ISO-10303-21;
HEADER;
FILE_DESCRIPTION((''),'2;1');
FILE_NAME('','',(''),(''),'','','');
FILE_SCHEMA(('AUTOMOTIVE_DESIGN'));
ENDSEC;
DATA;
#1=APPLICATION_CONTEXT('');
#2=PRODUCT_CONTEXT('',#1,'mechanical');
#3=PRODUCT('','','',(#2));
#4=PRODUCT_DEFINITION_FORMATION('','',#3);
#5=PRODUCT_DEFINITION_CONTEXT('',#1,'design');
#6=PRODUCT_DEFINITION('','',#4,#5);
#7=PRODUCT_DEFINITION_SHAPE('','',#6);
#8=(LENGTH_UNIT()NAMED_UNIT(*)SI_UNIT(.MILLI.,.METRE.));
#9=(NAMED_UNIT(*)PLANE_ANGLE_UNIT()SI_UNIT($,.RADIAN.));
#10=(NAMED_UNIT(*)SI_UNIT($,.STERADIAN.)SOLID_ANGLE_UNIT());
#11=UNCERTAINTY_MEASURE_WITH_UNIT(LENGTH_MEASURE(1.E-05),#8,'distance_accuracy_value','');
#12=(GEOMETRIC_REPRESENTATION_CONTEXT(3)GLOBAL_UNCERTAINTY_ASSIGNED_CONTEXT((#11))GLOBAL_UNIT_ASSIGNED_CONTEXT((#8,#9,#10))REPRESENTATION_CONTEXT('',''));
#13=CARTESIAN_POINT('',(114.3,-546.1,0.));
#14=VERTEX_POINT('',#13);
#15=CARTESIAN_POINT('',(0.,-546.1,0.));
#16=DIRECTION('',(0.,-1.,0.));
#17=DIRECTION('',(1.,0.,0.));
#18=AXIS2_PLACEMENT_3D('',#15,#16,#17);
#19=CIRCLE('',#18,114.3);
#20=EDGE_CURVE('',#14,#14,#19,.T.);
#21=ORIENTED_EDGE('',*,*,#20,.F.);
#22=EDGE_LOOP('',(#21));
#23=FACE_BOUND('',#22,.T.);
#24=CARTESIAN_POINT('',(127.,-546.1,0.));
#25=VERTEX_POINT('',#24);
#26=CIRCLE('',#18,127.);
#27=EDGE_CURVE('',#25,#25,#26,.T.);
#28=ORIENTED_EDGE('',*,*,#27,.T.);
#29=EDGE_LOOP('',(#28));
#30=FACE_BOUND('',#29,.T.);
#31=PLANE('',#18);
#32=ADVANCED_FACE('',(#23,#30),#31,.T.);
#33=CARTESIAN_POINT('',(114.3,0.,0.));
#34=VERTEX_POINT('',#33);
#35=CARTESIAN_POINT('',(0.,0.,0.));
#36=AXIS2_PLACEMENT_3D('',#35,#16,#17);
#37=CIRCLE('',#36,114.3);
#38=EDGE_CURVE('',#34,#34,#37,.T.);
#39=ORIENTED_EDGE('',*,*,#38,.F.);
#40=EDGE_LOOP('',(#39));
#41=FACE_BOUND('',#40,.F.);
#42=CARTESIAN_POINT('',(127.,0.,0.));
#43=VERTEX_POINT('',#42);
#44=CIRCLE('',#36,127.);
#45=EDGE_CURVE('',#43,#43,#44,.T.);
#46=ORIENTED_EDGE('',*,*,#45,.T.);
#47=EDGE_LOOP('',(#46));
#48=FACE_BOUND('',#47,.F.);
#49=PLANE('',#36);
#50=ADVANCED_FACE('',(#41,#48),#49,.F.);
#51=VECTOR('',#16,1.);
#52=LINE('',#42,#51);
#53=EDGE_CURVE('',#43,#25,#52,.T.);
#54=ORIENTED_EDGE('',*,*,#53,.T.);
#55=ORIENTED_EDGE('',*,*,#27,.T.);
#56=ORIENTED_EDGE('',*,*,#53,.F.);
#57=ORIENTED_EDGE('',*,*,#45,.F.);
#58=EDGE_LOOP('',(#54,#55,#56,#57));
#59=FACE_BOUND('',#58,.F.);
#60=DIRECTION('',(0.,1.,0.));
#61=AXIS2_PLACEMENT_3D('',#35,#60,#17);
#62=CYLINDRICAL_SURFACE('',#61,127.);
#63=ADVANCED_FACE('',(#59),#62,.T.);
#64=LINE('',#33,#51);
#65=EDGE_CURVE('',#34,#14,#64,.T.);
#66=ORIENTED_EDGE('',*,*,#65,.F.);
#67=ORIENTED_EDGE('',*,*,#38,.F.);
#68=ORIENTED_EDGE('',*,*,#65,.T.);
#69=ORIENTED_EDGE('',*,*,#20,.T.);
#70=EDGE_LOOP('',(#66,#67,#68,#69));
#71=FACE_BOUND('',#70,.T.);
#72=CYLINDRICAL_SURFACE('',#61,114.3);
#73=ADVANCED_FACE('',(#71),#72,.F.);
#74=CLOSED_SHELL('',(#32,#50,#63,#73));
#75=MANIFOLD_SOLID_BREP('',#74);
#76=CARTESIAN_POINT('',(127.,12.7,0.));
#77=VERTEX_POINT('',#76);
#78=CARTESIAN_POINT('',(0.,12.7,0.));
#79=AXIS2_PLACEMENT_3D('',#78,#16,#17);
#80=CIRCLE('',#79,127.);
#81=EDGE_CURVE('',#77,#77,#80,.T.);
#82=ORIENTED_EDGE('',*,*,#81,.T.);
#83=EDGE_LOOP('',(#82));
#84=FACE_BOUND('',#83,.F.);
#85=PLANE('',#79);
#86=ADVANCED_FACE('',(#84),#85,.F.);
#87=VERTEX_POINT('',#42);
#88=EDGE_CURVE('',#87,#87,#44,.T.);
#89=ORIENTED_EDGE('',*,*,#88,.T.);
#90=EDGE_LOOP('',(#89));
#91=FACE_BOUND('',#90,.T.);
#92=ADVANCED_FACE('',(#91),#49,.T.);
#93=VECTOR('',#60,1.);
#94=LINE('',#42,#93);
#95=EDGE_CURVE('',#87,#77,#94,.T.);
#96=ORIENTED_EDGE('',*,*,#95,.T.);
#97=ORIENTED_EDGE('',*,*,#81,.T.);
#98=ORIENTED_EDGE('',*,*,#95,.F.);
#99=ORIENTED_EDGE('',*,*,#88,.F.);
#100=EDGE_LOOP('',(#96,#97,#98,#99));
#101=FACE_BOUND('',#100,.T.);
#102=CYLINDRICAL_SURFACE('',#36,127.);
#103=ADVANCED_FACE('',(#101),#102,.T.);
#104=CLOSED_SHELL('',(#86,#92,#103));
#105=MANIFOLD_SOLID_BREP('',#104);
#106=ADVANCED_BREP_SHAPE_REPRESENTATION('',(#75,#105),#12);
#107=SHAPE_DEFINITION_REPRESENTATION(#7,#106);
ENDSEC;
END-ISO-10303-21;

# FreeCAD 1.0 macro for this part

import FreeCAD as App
import Part
import Sketcher
from FreeCAD import Vector
Q = App.Units.Quantity

doc = App.newDocument("Part")
body = doc.addObject("PartDesign::Body", "Body")

sketch1 = doc.addObject("Sketcher::SketchObject", "Sketch")
body.addObject(sketch1)
sketch1.AttachmentSupport = (doc.XZ_Plane, [""])
sketch1.MapMode = "FlatFace"
sketch1.addGeometry(Part.Circle(Vector(0, 0, 0), Vector(0, 0, 1), 127), False)
sketch1.addGeometry(Part.Circle(Vector(0, 0, 0), Vector(0, 0, 1), 114.3), False)
sketch1.addConstraint(Sketcher.Constraint("Coincident", 0, 3, -1, 1))
sketch1.addConstraint(Sketcher.Constraint("Coincident", 1, 3, -1, 1))
sketch1.addConstraint(Sketcher.Constraint("Diameter", 0, Q("10 in")))
sketch1.addConstraint(Sketcher.Constraint("Diameter", 1, Q("9 in")))
pad1 = doc.addObject("PartDesign::Pad", "Pad")
body.addObject(pad1)
pad1.Profile = sketch1
pad1.Length = Q("21.5 in")
body2 = doc.addObject("PartDesign::Body", "Body001")

sketch2 = doc.addObject("Sketcher::SketchObject", "Sketch001")
body2.addObject(sketch2)
sketch2.AttachmentSupport = (doc.getObject("XZ_Plane001"), [""])
sketch2.MapMode = "FlatFace"
sketch2.addGeometry(Part.Circle(Vector(0, 0, 0), Vector(0, 0, 1), 127), False)
sketch2.addConstraint(Sketcher.Constraint("Coincident", 0, 3, -1, 1))
sketch2.addConstraint(Sketcher.Constraint("Diameter", 0, Q("10 in")))
pad2 = doc.addObject("PartDesign::Pad", "Pad001")
body2.addObject(pad2)
pad2.Profile = sketch2
pad2.Length = Q("0.5 in")
pad2.Reversed = True

doc.recompute()
